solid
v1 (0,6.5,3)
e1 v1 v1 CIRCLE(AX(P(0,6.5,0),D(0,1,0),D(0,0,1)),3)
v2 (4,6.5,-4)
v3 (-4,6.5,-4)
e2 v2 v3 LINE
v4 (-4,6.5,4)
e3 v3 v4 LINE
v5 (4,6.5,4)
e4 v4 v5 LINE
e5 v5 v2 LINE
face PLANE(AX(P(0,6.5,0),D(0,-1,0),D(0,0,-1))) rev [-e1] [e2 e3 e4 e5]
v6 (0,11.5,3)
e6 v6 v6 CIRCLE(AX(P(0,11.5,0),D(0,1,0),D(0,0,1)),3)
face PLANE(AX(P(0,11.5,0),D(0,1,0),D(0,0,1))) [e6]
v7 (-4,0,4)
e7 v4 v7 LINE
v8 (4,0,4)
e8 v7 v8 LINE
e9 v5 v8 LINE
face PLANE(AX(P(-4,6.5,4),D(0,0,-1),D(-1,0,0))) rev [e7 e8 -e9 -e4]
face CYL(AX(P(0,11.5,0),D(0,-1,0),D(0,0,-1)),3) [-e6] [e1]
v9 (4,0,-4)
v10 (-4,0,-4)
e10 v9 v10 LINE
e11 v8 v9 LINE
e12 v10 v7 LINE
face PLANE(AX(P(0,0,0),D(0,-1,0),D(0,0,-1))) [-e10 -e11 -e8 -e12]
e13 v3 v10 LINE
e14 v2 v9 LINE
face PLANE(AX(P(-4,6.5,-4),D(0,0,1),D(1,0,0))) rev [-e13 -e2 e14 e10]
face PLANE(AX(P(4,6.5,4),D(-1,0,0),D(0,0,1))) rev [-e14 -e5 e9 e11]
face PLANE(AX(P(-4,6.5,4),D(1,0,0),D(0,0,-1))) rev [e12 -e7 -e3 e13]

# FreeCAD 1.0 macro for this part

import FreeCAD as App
import Part
import Sketcher
from FreeCAD import Vector
Q = App.Units.Quantity


def add_polygon(sketch, points):
    """Adds a closed chain of lines whose ends are joined by coincident constraints."""
    first, n = sketch.GeometryCount, len(points)
    for a, b in zip(points, points[1:] + points[:1]):
        sketch.addGeometry(Part.LineSegment(App.Vector(*a, 0), App.Vector(*b, 0)), False)
    for i in range(n):
        sketch.addConstraint(Sketcher.Constraint("Coincident", first + i, 2, first + (i + 1) % n, 1))

doc = App.newDocument("Part")
body = doc.addObject("PartDesign::Body", "Body")

# Sketch on XZ plane
sketch1 = body.newObject("Sketcher::SketchObject", "Sketch")
sketch1.AttachmentSupport = (doc.getObject("XZ_Plane"), [""])
sketch1.MapMode = "FlatFace"
add_polygon(sketch1, [(-4, -4), (-4, 4), (4, 4), (4, -4)])  # lines 0-3
sketch1.addConstraint(Sketcher.Constraint("Vertical", 0))
sketch1.addConstraint(Sketcher.Constraint("Horizontal", 1))
sketch1.addConstraint(Sketcher.Constraint("Vertical", 2))
sketch1.addConstraint(Sketcher.Constraint("Horizontal", 3))
sketch1.addConstraint(Sketcher.Constraint("Symmetric", 0, 2, 2, 2, -1, 1))
sketch1.addConstraint(Sketcher.Constraint("Equal", 3, 0))
sketch1.addConstraint(Sketcher.Constraint("DistanceX", 1, 1, 1, 2, Q("8 mm")))
pad1 = body.newObject("PartDesign::Pad", "Pad")
pad1.Profile = sketch1
pad1.Length = 6.5
pad1.Reversed = True

# Sketch on XZ plane
sketch2 = body.newObject("Sketcher::SketchObject", "Sketch001")
sketch2.AttachmentSupport = (doc.getObject("XZ_Plane"), [""])
sketch2.MapMode = "FlatFace"
sketch2.AttachmentOffset = App.Placement(Vector(0, 0, -6.5), App.Rotation())
sketch2.addGeometry(Part.Circle(Vector(0, 0, 0), Vector(0, 0, 1), 3), False)
sketch2.addConstraint(Sketcher.Constraint("Coincident", 0, 3, -1, 1))
sketch2.addConstraint(Sketcher.Constraint("Diameter", 0, Q("6 mm")))
pad2 = body.newObject("PartDesign::Pad", "Pad001")
pad2.Profile = sketch2
pad2.Length = 5
pad2.Reversed = True

doc.recompute()
